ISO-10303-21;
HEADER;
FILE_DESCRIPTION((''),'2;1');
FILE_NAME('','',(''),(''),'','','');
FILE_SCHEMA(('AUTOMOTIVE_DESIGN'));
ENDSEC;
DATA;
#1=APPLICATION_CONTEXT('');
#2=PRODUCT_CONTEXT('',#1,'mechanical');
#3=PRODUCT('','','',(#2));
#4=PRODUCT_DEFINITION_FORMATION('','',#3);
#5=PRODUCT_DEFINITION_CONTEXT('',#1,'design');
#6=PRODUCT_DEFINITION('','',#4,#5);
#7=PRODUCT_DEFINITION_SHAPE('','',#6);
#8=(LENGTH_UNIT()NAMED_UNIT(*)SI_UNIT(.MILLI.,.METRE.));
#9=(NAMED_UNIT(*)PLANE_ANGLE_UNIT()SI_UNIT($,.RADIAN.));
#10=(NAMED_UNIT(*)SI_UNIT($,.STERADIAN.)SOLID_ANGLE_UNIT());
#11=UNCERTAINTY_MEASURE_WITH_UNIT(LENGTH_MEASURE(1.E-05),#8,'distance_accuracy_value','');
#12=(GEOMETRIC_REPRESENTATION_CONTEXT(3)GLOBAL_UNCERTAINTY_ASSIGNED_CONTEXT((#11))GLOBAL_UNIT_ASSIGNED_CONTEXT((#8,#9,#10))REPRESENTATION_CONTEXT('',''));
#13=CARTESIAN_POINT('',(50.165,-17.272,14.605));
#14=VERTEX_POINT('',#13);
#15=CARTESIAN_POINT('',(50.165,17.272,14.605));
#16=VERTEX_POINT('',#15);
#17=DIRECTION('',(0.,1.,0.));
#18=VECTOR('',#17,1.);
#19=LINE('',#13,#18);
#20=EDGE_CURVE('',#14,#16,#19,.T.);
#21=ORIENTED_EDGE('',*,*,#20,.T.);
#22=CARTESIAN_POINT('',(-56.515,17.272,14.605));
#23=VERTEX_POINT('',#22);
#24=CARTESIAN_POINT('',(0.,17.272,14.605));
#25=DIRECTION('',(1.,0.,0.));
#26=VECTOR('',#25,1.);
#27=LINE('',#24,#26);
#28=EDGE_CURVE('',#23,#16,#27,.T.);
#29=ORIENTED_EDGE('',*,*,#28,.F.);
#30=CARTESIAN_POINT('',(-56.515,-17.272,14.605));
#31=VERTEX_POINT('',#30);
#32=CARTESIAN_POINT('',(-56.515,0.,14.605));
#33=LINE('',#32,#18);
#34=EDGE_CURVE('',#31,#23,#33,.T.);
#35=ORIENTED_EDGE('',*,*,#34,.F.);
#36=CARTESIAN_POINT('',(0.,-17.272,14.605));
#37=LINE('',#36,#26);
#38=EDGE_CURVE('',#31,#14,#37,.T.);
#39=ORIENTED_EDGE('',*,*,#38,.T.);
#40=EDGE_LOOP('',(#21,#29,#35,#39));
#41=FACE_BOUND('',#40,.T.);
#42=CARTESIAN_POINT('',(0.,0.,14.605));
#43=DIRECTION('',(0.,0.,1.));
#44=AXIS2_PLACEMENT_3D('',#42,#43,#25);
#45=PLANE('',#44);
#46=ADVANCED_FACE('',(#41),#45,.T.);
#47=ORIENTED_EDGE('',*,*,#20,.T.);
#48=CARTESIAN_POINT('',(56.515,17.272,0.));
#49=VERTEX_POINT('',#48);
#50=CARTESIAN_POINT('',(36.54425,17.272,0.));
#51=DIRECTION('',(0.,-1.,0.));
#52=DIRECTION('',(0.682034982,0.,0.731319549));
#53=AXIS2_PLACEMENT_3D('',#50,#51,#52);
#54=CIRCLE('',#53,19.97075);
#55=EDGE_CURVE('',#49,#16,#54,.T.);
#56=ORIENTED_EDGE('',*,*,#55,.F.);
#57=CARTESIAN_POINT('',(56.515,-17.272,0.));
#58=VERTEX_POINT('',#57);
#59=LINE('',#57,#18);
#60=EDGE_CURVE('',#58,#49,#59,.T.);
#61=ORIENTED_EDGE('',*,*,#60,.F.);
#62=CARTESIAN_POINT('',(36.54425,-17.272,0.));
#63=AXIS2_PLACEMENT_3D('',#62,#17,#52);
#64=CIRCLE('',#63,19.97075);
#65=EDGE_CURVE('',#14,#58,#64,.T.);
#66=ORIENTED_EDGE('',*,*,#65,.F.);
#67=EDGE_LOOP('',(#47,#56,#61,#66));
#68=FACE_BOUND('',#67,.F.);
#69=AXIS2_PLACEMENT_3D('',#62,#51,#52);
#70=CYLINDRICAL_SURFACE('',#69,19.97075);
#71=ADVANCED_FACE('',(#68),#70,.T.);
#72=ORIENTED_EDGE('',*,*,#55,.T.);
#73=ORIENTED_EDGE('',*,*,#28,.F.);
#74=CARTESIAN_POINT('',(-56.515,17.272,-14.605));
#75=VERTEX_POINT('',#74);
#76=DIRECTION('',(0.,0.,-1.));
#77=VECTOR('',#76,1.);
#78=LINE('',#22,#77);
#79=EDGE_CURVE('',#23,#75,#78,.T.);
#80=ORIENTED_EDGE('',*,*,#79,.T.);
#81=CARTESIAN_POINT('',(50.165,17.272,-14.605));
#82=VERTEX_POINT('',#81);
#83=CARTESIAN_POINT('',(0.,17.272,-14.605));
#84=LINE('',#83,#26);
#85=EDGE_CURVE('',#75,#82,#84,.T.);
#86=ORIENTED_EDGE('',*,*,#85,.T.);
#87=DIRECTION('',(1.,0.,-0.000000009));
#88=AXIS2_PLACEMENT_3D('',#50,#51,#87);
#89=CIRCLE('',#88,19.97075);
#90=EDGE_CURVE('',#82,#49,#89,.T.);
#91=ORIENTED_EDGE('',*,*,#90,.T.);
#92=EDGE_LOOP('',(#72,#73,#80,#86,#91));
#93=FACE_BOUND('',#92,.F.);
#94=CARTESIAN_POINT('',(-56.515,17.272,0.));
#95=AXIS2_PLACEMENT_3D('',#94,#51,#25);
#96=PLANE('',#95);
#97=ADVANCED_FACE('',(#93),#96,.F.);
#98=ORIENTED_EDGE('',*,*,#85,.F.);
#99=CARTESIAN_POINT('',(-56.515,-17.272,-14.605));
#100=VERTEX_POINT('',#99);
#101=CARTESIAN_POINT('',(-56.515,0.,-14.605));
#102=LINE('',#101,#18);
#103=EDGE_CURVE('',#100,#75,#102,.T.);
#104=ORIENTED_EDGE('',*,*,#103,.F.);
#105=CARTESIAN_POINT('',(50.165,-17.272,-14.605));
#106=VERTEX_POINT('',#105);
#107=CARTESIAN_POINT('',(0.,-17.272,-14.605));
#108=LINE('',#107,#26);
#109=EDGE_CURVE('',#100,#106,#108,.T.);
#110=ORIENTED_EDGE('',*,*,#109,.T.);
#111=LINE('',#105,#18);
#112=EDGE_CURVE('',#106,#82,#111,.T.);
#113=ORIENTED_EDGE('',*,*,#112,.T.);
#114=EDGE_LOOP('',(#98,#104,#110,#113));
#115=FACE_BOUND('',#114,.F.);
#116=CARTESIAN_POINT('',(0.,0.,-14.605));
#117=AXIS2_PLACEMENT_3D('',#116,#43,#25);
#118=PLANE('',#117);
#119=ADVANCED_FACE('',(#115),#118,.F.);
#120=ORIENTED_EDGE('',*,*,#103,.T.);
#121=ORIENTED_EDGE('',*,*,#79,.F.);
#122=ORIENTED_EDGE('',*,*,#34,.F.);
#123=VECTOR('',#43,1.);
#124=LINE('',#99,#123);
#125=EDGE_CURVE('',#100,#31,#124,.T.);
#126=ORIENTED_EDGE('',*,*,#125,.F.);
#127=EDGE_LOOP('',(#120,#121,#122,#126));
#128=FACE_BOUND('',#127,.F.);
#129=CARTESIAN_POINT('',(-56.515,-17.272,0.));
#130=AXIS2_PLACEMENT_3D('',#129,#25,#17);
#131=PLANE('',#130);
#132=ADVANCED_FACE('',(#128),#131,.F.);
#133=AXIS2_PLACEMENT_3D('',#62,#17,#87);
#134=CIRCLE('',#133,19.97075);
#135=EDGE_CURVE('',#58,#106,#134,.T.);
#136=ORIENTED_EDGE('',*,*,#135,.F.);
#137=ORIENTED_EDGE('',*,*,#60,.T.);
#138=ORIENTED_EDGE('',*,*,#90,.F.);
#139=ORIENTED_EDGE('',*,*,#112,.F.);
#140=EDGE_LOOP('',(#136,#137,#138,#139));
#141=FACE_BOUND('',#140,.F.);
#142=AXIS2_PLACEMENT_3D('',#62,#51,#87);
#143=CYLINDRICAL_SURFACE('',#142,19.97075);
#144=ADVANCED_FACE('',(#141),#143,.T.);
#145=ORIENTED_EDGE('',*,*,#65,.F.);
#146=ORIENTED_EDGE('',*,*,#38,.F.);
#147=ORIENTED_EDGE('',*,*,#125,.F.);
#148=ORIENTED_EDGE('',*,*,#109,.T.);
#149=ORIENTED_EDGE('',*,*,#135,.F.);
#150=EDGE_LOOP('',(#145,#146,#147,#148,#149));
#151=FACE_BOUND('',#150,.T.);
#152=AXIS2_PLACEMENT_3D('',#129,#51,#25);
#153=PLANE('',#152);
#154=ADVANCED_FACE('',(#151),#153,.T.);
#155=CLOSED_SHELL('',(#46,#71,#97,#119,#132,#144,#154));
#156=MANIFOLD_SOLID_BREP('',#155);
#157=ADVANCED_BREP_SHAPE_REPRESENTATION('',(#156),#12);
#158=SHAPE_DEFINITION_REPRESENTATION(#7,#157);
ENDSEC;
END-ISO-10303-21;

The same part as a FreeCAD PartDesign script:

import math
import FreeCAD as App
import Part
import Sketcher
from FreeCAD import Vector
Q = App.Units.Quantity


def add_polygon(sketch, points):
    """Adds a closed chain of lines whose ends are joined by coincident constraints."""
    first, n = sketch.GeometryCount, len(points)
    for a, b in zip(points, points[1:] + points[:1]):
        sketch.addGeometry(Part.LineSegment(App.Vector(*a, 0), App.Vector(*b, 0)), False)
    for i in range(n):
        sketch.addConstraint(Sketcher.Constraint("Coincident", first + i, 2, first + (i + 1) % n, 1))

doc = App.newDocument("Part")
body = doc.addObject("PartDesign::Body", "Body")

# Sketch on XY plane
sketch1 = doc.addObject("Sketcher::SketchObject", "Sketch")
body.addObject(sketch1)
sketch1.AttachmentSupport = (doc.XY_Plane, [""])
sketch1.MapMode = "FlatFace"
add_polygon(sketch1, [(-56.515, 17.272), (-56.515, -17.272), (56.515, -17.272), (56.515, 17.272)])  # lines 0-3
sketch1.addConstraint([
    Sketcher.Constraint("Vertical", 0),
    Sketcher.Constraint("Horizontal", 1),
    Sketcher.Constraint("Vertical", 2),
    Sketcher.Constraint("Horizontal", 3),
    Sketcher.Constraint("Symmetric", 0, 2, 2, 2, -1, 1),
    Sketcher.Constraint("DistanceX", 1, 1, 1, 2, Q("4.45 in")),
    Sketcher.Constraint("DistanceY", 0, 2, 0, 1, Q("1.36 in")),
])
pad1 = doc.addObject("PartDesign::Pad", "Pad")
body.addObject(pad1)
pad1.Profile = sketch1
pad1.Length = Q("1.15 in")
pad1.Midplane = True

# Sketch on XZ plane
sketch2 = doc.addObject("Sketcher::SketchObject", "Sketch001")
body.addObject(sketch2)
sketch2.AttachmentSupport = (doc.XZ_Plane, [""])
sketch2.MapMode = "FlatFace"
sketch2.AttachmentOffset = App.Placement(Vector(0, 0, 0.68 * 25.4), App.Rotation())
sketch2.addGeometry([
    Part.ArcOfCircle(Part.Circle(Vector(36.54425, 0, 0), Vector(0, 0, 1), 19.97075), math.radians(0), math.radians(46.997131)),  # 0
    Part.LineSegment(Vector(56.515, 0, 0), Vector(56.515, 14.605, 0)),  # 1
    Part.LineSegment(Vector(56.515, 14.605, 0), Vector(50.165, 14.605, 0)),  # 2
    Part.ArcOfCircle(Part.Circle(Vector(36.54425, 0, 0), Vector(0, 0, 1), 19.97075), math.radians(-46.997131), math.radians(0)),  # 3
    Part.LineSegment(Vector(50.165, -14.605, 0), Vector(56.515, -14.605, 0)),  # 4
    Part.LineSegment(Vector(56.515, -14.605, 0), Vector(56.515, 0, 0)),  # 5
], False)
sketch2.addConstraint([
    Sketcher.Constraint("Tangent", 0, 1, 1, 1),
    Sketcher.Constraint("Coincident", 1, 2, 2, 1),
    Sketcher.Constraint("Coincident", 2, 2, 0, 2),
    Sketcher.Constraint("Coincident", 3, 1, 4, 1),
    Sketcher.Constraint("Coincident", 4, 2, 5, 1),
    Sketcher.Constraint("Tangent", 5, 2, 3, 2),
    Sketcher.Constraint("Vertical", 1),
    Sketcher.Constraint("Horizontal", 2),
    Sketcher.Constraint("Horizontal", 4),
    Sketcher.Constraint("Vertical", 5),
    Sketcher.Constraint("Coincident", 3, 3, 0, 3),
    Sketcher.Constraint("Equal", 0, 3),
    Sketcher.Constraint("Symmetric", 2, 2, 3, 1, -1),
    Sketcher.Constraint("DistanceX", 2, 2, 2, 1, Q("0.25 in")),
    Sketcher.Constraint("DistanceY", 1, 1, 1, 2, Q("0.575 in")),
    Sketcher.Constraint("DistanceX", -1, 1, 0, 1, Q("2.225 in")),
])
pocket1 = doc.addObject("PartDesign::Pocket", "Pocket")
body.addObject(pocket1)
pocket1.Profile = sketch2
pocket1.Type = "ThroughAll"

doc.recompute()
